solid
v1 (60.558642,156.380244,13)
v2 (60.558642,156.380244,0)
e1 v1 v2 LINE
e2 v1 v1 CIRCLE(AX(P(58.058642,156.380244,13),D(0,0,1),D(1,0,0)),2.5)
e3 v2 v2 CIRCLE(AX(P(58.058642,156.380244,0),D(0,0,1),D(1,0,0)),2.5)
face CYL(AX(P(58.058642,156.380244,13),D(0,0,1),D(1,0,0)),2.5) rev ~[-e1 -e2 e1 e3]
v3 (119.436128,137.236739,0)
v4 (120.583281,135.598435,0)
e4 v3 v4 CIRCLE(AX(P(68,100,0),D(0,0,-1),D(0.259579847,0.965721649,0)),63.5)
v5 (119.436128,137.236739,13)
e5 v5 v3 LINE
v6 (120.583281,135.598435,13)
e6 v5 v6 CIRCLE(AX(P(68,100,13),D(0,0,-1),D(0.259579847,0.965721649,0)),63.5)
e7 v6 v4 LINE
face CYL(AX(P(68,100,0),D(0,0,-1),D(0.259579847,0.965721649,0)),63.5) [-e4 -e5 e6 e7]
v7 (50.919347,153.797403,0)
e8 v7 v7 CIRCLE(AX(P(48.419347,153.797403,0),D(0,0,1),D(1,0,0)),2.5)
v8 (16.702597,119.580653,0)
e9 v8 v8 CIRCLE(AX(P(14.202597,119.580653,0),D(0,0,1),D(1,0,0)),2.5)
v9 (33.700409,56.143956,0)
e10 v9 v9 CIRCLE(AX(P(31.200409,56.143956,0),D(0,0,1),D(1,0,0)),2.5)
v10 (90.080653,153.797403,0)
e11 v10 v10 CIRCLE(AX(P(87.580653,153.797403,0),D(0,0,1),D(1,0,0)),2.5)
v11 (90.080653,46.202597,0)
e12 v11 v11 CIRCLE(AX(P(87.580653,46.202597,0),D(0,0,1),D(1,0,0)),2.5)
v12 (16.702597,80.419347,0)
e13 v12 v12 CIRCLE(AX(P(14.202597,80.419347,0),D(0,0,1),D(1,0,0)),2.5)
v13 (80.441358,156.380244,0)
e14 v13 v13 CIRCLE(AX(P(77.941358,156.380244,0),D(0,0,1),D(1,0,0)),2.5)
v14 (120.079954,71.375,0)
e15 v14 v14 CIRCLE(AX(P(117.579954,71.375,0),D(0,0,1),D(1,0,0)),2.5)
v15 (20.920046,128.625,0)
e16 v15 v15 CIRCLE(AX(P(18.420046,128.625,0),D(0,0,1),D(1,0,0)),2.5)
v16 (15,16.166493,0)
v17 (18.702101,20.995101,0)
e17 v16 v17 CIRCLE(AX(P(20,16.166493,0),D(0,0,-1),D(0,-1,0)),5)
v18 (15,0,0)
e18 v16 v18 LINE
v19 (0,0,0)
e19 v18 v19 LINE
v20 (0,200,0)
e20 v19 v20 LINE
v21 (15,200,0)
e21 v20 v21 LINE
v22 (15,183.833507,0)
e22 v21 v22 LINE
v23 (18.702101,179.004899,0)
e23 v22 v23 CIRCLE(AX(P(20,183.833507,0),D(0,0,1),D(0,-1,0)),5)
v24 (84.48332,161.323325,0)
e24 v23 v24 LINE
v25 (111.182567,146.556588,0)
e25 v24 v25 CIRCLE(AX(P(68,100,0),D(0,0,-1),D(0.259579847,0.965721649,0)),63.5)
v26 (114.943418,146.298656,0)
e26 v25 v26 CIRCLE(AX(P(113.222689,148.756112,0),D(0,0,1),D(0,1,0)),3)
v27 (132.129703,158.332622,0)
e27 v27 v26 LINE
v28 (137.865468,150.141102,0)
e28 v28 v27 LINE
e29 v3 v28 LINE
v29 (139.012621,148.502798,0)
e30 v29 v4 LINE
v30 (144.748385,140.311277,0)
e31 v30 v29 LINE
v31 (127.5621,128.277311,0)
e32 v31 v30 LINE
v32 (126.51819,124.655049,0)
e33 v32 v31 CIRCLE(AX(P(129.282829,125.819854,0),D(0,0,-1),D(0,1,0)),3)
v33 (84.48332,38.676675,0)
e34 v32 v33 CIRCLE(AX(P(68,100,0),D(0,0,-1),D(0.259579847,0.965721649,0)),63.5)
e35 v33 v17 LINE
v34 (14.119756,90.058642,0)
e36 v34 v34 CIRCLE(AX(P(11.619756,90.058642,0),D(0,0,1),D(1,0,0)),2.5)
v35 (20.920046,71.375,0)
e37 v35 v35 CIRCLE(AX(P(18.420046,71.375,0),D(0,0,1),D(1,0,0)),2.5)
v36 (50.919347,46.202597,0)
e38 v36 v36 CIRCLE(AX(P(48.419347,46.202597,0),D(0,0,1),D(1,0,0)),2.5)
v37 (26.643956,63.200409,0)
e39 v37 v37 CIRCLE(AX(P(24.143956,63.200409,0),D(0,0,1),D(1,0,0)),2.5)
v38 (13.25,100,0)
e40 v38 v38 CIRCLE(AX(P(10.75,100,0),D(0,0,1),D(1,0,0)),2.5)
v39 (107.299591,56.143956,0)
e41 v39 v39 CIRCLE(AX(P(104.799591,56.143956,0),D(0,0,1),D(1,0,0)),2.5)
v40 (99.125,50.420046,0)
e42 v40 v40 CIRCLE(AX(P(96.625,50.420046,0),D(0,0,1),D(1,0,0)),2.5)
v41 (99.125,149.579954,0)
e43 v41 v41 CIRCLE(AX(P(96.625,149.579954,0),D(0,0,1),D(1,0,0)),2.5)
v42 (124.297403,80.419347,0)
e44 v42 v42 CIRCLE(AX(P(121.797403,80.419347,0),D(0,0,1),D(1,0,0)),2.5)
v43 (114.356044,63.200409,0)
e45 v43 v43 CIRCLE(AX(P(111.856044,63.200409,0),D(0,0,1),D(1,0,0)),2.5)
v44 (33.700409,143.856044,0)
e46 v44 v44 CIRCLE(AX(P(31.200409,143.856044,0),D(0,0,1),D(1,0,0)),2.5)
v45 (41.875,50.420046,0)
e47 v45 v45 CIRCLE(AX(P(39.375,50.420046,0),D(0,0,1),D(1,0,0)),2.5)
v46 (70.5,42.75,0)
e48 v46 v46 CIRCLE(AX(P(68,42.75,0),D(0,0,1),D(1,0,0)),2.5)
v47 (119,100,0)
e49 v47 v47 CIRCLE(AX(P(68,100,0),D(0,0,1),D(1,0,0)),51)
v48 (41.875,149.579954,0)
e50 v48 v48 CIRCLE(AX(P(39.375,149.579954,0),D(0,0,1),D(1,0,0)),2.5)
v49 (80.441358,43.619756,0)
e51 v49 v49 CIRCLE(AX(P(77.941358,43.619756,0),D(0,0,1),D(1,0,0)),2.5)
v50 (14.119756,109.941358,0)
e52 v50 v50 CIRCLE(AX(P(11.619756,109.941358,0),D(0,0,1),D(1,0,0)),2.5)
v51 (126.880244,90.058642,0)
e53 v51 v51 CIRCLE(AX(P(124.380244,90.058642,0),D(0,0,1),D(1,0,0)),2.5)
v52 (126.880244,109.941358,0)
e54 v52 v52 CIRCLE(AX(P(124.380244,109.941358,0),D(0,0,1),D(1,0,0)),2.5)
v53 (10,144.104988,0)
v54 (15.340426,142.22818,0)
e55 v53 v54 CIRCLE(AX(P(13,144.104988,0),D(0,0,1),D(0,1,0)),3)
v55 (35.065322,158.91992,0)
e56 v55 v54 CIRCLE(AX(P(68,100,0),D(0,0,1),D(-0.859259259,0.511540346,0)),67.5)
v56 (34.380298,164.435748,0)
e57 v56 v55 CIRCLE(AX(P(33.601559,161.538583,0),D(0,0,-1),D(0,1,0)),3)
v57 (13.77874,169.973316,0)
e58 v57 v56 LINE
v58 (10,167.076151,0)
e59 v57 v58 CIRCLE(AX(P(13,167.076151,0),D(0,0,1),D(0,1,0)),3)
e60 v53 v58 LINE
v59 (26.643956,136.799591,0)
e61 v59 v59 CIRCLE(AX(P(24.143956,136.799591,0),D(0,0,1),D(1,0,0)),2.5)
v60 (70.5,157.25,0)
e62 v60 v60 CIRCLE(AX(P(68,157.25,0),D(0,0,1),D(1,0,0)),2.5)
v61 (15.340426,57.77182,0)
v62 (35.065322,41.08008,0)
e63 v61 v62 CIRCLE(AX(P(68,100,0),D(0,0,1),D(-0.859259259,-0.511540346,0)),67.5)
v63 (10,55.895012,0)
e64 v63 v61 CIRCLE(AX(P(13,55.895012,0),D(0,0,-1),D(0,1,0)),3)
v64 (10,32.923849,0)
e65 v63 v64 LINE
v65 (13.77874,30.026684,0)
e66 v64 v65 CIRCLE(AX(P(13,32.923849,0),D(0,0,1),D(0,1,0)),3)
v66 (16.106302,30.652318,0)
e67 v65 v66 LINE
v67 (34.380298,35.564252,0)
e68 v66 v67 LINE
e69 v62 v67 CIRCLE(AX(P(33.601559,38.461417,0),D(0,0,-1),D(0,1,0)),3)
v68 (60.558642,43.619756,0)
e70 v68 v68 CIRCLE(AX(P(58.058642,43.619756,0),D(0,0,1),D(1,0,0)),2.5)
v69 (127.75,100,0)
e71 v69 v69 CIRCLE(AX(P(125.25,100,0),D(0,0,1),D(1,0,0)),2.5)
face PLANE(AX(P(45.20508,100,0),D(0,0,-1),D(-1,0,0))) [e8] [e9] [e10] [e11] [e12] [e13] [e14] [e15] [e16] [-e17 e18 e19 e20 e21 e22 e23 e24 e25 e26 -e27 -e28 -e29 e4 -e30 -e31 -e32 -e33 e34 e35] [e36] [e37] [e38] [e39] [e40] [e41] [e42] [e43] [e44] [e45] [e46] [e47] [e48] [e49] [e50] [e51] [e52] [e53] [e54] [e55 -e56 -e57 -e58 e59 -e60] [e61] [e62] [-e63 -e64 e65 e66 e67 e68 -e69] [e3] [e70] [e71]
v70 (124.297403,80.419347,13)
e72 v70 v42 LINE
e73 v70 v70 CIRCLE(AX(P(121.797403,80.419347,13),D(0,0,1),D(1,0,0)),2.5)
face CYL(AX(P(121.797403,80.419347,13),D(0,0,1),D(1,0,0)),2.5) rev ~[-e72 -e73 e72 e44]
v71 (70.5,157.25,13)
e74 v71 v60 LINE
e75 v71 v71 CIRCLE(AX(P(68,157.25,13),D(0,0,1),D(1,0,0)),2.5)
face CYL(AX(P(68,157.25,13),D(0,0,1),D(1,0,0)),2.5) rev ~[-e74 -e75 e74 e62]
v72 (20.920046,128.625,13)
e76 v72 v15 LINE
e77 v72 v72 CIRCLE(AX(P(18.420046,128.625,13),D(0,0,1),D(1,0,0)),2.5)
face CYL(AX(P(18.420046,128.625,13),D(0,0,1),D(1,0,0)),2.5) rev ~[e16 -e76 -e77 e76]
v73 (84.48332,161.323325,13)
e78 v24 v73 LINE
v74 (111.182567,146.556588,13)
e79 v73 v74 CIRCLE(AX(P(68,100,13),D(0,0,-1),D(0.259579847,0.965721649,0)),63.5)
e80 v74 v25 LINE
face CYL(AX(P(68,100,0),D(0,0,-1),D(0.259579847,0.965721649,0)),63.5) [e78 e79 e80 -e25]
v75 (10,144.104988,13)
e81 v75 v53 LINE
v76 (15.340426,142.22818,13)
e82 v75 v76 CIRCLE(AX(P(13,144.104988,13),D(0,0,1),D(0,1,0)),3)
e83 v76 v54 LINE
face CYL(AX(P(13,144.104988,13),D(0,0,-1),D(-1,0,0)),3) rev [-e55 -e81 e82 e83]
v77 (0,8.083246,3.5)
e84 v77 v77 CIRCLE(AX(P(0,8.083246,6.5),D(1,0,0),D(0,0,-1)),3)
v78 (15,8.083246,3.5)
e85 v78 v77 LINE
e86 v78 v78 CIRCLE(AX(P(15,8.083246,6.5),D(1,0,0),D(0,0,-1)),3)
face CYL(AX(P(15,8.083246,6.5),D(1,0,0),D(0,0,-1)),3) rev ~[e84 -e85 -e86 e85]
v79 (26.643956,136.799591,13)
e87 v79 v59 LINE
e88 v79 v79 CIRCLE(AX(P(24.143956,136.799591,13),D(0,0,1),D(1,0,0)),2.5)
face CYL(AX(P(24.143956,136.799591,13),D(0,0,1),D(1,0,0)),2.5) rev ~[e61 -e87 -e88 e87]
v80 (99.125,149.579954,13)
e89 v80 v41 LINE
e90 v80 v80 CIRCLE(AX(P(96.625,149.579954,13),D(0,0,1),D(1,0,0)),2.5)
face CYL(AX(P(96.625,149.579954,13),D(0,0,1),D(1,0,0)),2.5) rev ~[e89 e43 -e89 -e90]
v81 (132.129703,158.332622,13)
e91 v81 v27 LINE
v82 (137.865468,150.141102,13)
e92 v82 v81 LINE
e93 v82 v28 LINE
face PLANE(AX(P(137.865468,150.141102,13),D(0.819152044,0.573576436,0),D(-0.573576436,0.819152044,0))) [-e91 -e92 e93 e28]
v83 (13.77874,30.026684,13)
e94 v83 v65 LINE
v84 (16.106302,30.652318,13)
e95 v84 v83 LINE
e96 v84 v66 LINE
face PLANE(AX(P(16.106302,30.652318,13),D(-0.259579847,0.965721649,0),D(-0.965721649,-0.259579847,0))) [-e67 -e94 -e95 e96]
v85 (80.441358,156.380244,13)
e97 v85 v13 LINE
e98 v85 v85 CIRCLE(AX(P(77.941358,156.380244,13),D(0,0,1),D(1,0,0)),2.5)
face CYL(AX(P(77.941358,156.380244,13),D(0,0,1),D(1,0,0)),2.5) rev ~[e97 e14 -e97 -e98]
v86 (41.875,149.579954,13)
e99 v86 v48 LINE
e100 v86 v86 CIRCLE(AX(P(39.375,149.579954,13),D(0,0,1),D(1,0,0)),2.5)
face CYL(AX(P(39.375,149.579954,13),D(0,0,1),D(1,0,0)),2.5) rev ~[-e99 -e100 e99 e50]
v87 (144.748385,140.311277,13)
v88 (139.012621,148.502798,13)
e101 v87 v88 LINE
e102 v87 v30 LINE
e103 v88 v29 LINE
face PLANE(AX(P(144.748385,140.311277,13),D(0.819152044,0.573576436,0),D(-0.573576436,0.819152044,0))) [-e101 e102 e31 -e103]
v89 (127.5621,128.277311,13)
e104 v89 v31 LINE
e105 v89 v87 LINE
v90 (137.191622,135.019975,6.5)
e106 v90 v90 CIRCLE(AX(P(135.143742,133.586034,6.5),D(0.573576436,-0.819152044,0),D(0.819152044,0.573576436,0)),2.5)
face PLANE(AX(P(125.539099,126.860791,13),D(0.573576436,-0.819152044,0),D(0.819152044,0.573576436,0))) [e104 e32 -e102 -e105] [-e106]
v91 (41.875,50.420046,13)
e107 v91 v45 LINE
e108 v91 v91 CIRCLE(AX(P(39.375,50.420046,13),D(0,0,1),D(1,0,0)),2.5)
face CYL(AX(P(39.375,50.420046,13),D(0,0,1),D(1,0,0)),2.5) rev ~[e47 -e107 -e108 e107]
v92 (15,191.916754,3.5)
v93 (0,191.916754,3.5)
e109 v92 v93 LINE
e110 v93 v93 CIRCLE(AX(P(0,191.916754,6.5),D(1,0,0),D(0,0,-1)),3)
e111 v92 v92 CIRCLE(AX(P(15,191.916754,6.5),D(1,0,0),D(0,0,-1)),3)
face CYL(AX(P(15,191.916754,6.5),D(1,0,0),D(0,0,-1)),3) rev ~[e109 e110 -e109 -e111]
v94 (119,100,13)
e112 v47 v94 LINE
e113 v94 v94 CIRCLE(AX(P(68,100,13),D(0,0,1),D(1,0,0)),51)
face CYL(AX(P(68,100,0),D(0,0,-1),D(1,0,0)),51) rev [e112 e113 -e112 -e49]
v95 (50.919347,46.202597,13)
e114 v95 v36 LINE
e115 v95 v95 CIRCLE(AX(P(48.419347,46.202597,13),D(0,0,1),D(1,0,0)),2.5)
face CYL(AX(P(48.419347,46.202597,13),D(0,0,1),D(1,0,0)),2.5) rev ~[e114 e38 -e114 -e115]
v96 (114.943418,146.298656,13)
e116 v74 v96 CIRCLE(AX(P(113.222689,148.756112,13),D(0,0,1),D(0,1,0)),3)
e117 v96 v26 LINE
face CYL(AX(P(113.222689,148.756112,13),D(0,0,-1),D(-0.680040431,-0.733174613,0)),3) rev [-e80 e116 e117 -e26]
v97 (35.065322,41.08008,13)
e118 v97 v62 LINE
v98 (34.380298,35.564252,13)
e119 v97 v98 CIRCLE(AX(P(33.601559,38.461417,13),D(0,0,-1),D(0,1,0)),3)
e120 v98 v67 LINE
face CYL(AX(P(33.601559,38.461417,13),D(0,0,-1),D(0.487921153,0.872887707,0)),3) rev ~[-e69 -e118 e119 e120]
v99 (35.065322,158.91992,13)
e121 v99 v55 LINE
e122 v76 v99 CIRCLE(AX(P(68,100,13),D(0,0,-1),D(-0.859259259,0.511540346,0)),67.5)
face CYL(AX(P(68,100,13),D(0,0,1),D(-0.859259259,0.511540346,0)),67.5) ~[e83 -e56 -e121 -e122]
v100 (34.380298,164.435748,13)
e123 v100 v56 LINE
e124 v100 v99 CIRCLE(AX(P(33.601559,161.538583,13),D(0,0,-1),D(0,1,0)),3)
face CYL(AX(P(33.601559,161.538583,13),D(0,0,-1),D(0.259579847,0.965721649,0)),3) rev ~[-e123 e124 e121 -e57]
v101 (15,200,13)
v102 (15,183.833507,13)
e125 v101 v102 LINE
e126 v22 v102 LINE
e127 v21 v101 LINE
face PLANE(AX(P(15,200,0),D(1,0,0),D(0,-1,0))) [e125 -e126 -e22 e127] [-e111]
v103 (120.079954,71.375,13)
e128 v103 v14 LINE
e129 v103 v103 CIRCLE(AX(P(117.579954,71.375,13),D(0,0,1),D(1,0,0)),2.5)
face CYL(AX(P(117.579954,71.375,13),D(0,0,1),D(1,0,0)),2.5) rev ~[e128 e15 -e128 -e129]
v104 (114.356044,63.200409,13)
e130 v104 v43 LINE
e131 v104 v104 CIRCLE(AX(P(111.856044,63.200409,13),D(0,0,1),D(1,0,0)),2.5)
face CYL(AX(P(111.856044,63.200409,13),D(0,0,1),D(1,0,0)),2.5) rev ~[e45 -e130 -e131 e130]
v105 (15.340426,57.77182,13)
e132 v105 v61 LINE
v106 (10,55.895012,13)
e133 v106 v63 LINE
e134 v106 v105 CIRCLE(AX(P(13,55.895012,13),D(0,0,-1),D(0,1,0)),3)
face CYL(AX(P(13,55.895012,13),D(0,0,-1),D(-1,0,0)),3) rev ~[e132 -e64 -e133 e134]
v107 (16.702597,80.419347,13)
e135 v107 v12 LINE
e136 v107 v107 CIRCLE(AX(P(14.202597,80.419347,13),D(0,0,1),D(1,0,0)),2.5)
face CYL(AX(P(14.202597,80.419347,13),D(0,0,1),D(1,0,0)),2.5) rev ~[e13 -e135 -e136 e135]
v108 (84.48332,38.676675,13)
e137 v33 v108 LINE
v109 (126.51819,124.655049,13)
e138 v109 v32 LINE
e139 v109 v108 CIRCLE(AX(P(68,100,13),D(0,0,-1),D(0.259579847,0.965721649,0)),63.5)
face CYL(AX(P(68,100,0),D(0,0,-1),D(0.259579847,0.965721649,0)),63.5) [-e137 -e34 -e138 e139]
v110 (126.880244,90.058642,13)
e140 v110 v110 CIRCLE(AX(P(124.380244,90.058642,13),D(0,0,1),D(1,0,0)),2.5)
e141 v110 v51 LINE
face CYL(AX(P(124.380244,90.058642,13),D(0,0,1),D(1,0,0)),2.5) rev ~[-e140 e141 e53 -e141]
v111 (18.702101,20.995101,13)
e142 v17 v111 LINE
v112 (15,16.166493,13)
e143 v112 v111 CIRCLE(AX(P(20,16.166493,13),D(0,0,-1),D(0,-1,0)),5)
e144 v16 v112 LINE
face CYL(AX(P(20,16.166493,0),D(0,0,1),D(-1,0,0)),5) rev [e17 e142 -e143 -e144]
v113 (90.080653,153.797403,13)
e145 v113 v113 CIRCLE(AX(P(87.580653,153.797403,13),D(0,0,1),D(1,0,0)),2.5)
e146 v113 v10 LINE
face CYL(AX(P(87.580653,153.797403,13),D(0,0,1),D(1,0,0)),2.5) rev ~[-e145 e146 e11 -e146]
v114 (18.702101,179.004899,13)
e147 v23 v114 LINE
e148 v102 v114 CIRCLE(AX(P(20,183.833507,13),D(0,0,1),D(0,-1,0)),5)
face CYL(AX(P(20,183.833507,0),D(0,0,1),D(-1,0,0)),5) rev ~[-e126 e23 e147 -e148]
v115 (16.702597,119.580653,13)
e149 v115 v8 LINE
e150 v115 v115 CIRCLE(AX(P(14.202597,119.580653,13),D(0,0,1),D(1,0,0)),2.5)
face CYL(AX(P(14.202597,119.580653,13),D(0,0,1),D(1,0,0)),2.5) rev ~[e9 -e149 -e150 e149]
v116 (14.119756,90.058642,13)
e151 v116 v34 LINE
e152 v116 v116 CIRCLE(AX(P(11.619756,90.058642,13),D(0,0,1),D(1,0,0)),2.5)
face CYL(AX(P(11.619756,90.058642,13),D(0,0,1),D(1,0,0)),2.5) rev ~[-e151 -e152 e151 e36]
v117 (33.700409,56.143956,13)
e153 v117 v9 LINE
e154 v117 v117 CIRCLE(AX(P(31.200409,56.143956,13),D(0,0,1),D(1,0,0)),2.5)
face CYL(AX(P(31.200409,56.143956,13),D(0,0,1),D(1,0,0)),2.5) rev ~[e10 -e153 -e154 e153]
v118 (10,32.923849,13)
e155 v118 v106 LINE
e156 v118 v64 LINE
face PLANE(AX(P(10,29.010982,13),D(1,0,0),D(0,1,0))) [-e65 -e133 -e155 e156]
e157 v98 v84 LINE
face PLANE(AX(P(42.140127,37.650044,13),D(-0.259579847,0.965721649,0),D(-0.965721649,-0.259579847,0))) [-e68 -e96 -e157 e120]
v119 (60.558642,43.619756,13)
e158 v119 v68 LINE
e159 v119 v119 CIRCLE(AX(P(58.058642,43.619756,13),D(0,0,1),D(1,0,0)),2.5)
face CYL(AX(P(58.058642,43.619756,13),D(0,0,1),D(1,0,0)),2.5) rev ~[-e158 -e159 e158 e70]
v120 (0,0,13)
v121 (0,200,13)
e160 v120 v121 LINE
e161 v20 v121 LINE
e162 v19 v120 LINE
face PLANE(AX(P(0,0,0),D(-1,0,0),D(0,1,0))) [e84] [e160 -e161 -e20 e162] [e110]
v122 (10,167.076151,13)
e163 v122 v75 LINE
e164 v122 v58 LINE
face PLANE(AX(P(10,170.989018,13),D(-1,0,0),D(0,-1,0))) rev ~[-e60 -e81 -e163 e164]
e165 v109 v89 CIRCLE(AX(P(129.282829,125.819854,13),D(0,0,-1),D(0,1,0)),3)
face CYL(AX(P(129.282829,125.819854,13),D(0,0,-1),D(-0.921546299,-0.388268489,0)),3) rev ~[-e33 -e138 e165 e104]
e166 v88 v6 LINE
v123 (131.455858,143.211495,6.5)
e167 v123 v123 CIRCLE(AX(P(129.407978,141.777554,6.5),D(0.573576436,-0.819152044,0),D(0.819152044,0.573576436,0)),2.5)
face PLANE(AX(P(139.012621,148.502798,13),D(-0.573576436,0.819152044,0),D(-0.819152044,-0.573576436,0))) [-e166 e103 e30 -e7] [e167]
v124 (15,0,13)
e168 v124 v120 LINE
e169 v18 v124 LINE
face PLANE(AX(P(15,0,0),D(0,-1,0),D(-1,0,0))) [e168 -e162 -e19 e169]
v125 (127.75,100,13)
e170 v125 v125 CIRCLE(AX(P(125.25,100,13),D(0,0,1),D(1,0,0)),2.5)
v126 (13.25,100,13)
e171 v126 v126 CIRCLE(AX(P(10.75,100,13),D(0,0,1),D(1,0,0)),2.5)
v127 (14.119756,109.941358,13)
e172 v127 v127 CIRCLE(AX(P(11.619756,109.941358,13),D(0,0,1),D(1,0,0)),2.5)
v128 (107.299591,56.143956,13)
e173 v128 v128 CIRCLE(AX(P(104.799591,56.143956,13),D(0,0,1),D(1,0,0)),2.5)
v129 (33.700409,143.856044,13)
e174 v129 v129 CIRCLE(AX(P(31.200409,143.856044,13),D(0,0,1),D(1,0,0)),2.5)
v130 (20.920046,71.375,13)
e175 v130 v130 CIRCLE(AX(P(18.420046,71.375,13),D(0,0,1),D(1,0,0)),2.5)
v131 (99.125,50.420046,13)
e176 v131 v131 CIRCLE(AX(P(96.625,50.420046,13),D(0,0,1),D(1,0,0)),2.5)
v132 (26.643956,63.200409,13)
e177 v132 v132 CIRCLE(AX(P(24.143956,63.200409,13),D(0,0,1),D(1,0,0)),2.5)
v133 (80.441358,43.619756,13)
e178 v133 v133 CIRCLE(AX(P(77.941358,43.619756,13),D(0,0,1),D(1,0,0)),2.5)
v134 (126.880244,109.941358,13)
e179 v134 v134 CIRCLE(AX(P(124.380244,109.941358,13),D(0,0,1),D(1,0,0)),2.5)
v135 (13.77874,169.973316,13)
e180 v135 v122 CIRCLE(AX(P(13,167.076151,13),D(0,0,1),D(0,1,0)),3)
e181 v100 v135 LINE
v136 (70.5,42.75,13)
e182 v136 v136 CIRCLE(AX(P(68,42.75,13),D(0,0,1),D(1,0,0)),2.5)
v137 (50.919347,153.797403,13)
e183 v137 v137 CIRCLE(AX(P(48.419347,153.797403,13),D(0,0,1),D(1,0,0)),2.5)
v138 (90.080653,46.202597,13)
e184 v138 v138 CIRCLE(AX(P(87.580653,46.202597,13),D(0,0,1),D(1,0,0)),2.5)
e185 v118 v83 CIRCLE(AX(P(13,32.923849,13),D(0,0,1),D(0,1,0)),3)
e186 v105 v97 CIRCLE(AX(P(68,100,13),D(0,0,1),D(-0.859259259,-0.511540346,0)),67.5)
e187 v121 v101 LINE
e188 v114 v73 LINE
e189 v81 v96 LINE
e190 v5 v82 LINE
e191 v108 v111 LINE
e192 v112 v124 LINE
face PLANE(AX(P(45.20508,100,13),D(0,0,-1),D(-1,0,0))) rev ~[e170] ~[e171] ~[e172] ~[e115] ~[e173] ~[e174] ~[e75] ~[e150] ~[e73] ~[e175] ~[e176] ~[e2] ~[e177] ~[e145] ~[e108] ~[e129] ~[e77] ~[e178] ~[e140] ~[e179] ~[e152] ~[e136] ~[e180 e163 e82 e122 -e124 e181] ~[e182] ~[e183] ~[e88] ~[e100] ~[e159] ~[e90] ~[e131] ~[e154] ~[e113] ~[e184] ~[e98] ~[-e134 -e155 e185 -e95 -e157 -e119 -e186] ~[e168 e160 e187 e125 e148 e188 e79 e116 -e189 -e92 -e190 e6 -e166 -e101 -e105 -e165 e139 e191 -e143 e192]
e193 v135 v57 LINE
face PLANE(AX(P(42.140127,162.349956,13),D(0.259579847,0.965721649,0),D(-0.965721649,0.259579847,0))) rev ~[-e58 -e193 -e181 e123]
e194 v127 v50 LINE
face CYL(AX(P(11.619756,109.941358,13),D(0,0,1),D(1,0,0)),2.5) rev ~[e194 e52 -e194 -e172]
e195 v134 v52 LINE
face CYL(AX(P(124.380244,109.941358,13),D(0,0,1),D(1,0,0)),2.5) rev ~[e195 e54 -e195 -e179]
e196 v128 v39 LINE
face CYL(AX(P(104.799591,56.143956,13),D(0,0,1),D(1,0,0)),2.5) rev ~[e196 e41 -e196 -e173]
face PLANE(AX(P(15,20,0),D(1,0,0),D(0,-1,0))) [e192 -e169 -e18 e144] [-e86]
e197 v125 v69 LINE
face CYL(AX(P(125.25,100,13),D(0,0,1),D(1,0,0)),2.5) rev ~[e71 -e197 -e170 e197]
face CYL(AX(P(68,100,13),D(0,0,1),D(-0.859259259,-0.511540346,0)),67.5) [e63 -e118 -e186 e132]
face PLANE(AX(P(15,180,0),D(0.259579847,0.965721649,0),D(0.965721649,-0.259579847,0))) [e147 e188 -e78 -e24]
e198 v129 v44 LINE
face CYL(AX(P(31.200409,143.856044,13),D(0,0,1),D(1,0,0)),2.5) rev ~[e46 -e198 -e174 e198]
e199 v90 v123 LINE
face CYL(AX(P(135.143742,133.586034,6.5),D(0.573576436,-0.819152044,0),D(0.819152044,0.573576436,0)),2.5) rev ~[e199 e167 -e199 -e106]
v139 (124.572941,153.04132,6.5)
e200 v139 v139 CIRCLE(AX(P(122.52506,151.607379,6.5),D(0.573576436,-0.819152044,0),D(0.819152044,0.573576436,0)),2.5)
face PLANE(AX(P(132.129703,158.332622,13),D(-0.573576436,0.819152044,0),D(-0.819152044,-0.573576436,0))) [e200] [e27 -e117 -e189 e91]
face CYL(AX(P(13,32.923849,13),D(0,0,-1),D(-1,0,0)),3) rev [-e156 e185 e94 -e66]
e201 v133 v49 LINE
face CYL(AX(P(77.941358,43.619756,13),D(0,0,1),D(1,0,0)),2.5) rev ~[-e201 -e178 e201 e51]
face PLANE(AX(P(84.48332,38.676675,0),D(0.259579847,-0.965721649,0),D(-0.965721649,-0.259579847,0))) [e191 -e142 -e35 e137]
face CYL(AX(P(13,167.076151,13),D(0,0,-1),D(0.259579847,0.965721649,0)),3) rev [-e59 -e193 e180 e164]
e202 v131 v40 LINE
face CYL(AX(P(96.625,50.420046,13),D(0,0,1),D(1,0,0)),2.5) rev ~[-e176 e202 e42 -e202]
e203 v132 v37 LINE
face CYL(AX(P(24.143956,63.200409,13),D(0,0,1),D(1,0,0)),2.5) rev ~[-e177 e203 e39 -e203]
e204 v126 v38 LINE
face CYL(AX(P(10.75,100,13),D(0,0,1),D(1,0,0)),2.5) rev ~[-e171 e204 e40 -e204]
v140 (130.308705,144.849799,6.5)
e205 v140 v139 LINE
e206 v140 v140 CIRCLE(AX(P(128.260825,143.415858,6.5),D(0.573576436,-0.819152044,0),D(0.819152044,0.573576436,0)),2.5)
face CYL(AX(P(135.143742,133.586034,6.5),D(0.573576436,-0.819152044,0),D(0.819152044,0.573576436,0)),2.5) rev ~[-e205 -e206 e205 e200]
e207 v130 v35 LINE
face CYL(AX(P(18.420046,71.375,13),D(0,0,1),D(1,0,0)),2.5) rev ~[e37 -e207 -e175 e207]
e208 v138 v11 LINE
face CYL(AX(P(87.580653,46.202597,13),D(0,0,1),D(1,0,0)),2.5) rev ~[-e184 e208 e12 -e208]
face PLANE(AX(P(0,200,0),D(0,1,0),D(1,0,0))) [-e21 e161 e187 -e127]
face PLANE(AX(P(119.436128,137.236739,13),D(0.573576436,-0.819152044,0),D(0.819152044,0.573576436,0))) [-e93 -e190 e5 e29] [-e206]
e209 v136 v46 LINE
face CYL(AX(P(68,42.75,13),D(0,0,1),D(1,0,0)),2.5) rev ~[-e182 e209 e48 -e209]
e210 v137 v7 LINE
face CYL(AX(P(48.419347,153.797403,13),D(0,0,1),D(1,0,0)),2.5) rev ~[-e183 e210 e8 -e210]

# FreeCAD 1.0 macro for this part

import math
import FreeCAD as App
import Part
import Sketcher
from FreeCAD import Vector
Q = App.Units.Quantity


def edges_at(feature, points):
    """Names of the edges that pass closest to the given points."""
    edges = feature.Shape.Edges
    near = lambda p: min(range(len(edges)), key=lambda i: edges[i].distToShape(Part.Vertex(*p))[0])
    return sorted({f"Edge{near(p) + 1}" for p in points})

doc = App.newDocument("Part")
body = doc.addObject("PartDesign::Body", "Body")

# Sketch on XY plane
sketch1 = body.newObject("Sketcher::SketchObject", "Sketch")
sketch1.AttachmentSupport = (doc.getObject("XY_Plane"), [""])
sketch1.MapMode = "FlatFace"
sketch1.addGeometry(Part.LineSegment(Vector(0, 200, 0), Vector(0, 0, 0)), False)
sketch1.addGeometry(Part.LineSegment(Vector(0, 0, 0), Vector(15, 0, 0)), False)
sketch1.addGeometry(Part.LineSegment(Vector(15, 0, 0), Vector(15, 20, 0)), False)
sketch1.addGeometry(Part.LineSegment(Vector(15, 20, 0), Vector(84.48332, 38.676675, 0)), False)
sketch1.addGeometry(Part.ArcOfCircle(Part.Circle(Vector(68, 100, 0), Vector(0, 0, 1), 63.5), math.radians(-74.954867), math.radians(74.954867)), False)
sketch1.addGeometry(Part.LineSegment(Vector(84.48332, 161.323325, 0), Vector(15, 180, 0)), False)
sketch1.addGeometry(Part.LineSegment(Vector(15, 180, 0), Vector(15, 200, 0)), False)
sketch1.addGeometry(Part.LineSegment(Vector(15, 200, 0), Vector(0, 200, 0)), False)
sketch1.addGeometry(Part.Circle(Vector(68, 100, 0), Vector(0, 0, 1), 51), False)
sketch1.addConstraint(Sketcher.Constraint("Coincident", 0, 2, 1, 1))
sketch1.addConstraint(Sketcher.Constraint("Coincident", 1, 2, 2, 1))
sketch1.addConstraint(Sketcher.Constraint("Coincident", 2, 2, 3, 1))
sketch1.addConstraint(Sketcher.Constraint("Tangent", 3, 2, 4, 1))
sketch1.addConstraint(Sketcher.Constraint("Tangent", 4, 2, 5, 1))
sketch1.addConstraint(Sketcher.Constraint("Coincident", 5, 2, 6, 1))
sketch1.addConstraint(Sketcher.Constraint("Coincident", 6, 2, 7, 1))
sketch1.addConstraint(Sketcher.Constraint("Coincident", 7, 2, 0, 1))
sketch1.addConstraint(Sketcher.Constraint("Vertical", 0))
sketch1.addConstraint(Sketcher.Constraint("Horizontal", 1))
sketch1.addConstraint(Sketcher.Constraint("Vertical", 2))
sketch1.addConstraint(Sketcher.Constraint("Vertical", 6))
sketch1.addConstraint(Sketcher.Constraint("Horizontal", 7))
sketch1.addConstraint(Sketcher.Constraint("Coincident", 0, 2, -1, 1))
sketch1.addConstraint(Sketcher.Constraint("Coincident", 8, 3, 4, 3))
sketch1.addConstraint(Sketcher.Constraint("Vertical", 3, 2, 4, 2))
sketch1.addConstraint(Sketcher.Constraint("Vertical", 2, 2, 5, 2))
sketch1.addConstraint(Sketcher.Constraint("Equal", 2, 6))
sketch1.addConstraint(Sketcher.Constraint("Diameter", 8, 102.0))
sketch1.addConstraint(Sketcher.Constraint("Radius", 4, 63.5))
sketch1.addConstraint(Sketcher.Constraint("DistanceX", 1, 1, 1, 2, 15.0))
sketch1.addConstraint(Sketcher.Constraint("DistanceY", 0, 2, 0, 1, 200.0))
sketch1.addConstraint(Sketcher.Constraint("DistanceY", 2, 1, 2, 2, 20.0))
sketch1.addConstraint(Sketcher.Constraint("DistanceX", -1, 1, 4, 3, 68.0))
pad1 = body.newObject("PartDesign::Pad", "Pad")
pad1.Profile = sketch1
pad1.Length = 13
doc.recompute()

fillet = body.newObject("PartDesign::Fillet", "Fillet")
fillet.Base = (pad1, edges_at(pad1, [(15, 180, 6.5), (15, 20, 6.5)]))
fillet.Radius = 5

# Sketch on XY plane
sketch2 = body.newObject("Sketcher::SketchObject", "Sketch001")
sketch2.AttachmentSupport = (doc.getObject("XY_Plane"), [""])
sketch2.MapMode = "FlatFace"
sketch2.AttachmentOffset = App.Placement(Vector(0, 0, 13), App.Rotation())
sketch2.addGeometry(Part.ArcOfCircle(Part.Circle(Vector(68, 100, 0), Vector(0, 0, 1), 63.5), math.radians(35.902333), math.radians(44.975575)), False)
sketch2.addGeometry(Part.LineSegment(Vector(119.436128, 137.236739, 0), Vector(137.865468, 150.141102, 0)), False)
sketch2.addGeometry(Part.LineSegment(Vector(137.865468, 150.141102, 0), Vector(132.129703, 158.332622, 0)), False)
sketch2.addGeometry(Part.LineSegment(Vector(132.129703, 158.332622, 0), Vector(112.920418, 144.882135, 0)), False)
sketch2.addGeometry(Part.LineSegment(Vector(139.012621, 148.502798, 0), Vector(120.583281, 135.598435, 0)), False)
sketch2.addGeometry(Part.ArcOfCircle(Part.Circle(Vector(68, 100, 0), Vector(0, 0, 1), 63.5), math.radians(25.024425), math.radians(34.097667)), False)
sketch2.addGeometry(Part.LineSegment(Vector(125.539099, 126.860791, 0), Vector(144.748385, 140.311277, 0)), False)
sketch2.addGeometry(Part.LineSegment(Vector(144.748385, 140.311277, 0), Vector(139.012621, 148.502798, 0)), False)
sketch2.addConstraint(Sketcher.Constraint("Coincident", 0, 1, 1, 1))
sketch2.addConstraint(Sketcher.Constraint("Coincident", 1, 2, 2, 1))
sketch2.addConstraint(Sketcher.Constraint("Coincident", 2, 2, 3, 1))
sketch2.addConstraint(Sketcher.Constraint("Coincident", 3, 2, 0, 2))
sketch2.addConstraint(Sketcher.Constraint("Coincident", 4, 2, 5, 2))
sketch2.addConstraint(Sketcher.Constraint("Coincident", 5, 1, 6, 1))
sketch2.addConstraint(Sketcher.Constraint("Coincident", 6, 2, 7, 1))
sketch2.addConstraint(Sketcher.Constraint("Coincident", 7, 2, 4, 1))
sketch2.addConstraint(Sketcher.Constraint("Coincident", 5, 3, 0, 3))
sketch2.addConstraint(Sketcher.Constraint("Equal", 0, 5))
sketch2.addConstraint(Sketcher.Constraint("Perpendicular", 1, 2))
sketch2.addConstraint(Sketcher.Constraint("Perpendicular", 2, 3))
sketch2.addConstraint(Sketcher.Constraint("Parallel", 3, 4))
sketch2.addConstraint(Sketcher.Constraint("Parallel", 4, 6))
sketch2.addConstraint(Sketcher.Constraint("Perpendicular", 6, 7))
sketch2.addConstraint(Sketcher.Constraint("Equal", 1, 4))
sketch2.addConstraint(Sketcher.Constraint("Equal", 3, 6))
sketch2.addConstraint(Sketcher.Constraint("Equal", 2, 7))
sketch2.addConstraint(Sketcher.Constraint("Radius", 0, 63.5))
sketch2.addConstraint(Sketcher.Constraint("Angle", 1, Q("35 deg")))
sketch2.addConstraint(Sketcher.Constraint("Distance", 2, 10.0))
sketch2.addConstraint(Sketcher.Constraint("DistanceX", -1, 1, 0, 3, 68.0))
sketch2.addConstraint(Sketcher.Constraint("DistanceY", -1, 1, 0, 3, 100.0))
sketch2.addConstraint(Sketcher.Constraint("DistanceY", -1, 1, 1, 2, 150.141102))
sketch2.addConstraint(Sketcher.Constraint("DistanceX", -1, 1, 5, 1, 125.539099))
pad2 = body.newObject("PartDesign::Pad", "Pad001")
pad2.Profile = sketch2
pad2.Length = 13
pad2.Reversed = True

# Sketch on XY plane
sketch3 = body.newObject("Sketcher::SketchObject", "Sketch002")
sketch3.AttachmentSupport = (doc.getObject("XY_Plane"), [""])
sketch3.MapMode = "FlatFace"
sketch3.AttachmentOffset = App.Placement(Vector(0, 0, 13), App.Rotation())
sketch3.addGeometry(Part.Circle(Vector(96.625, 149.579954, 0), Vector(0, 0, 1), 2.5), False)
sketch3.addGeometry(Part.Circle(Vector(124.380244, 109.941358, 0), Vector(0, 0, 1), 2.5), False)
sketch3.addGeometry(Part.Circle(Vector(87.580653, 153.797403, 0), Vector(0, 0, 1), 2.5), False)
sketch3.addGeometry(Part.Circle(Vector(77.941358, 156.380244, 0), Vector(0, 0, 1), 2.5), False)
sketch3.addGeometry(Part.Circle(Vector(68, 157.25, 0), Vector(0, 0, 1), 2.5), False)
sketch3.addGeometry(Part.Circle(Vector(58.058642, 156.380244, 0), Vector(0, 0, 1), 2.5), False)
sketch3.addGeometry(Part.Circle(Vector(48.419347, 153.797403, 0), Vector(0, 0, 1), 2.5), False)
sketch3.addGeometry(Part.Circle(Vector(39.375, 149.579954, 0), Vector(0, 0, 1), 2.5), False)
sketch3.addGeometry(Part.Circle(Vector(31.200409, 143.856044, 0), Vector(0, 0, 1), 2.5), False)
sketch3.addGeometry(Part.Circle(Vector(24.143956, 136.799591, 0), Vector(0, 0, 1), 2.5), False)
sketch3.addGeometry(Part.Circle(Vector(18.420046, 128.625, 0), Vector(0, 0, 1), 2.5), False)
sketch3.addGeometry(Part.Circle(Vector(14.202597, 119.580653, 0), Vector(0, 0, 1), 2.5), False)
sketch3.addGeometry(Part.Circle(Vector(11.619756, 109.941358, 0), Vector(0, 0, 1), 2.5), False)
sketch3.addGeometry(Part.Circle(Vector(10.75, 100, 0), Vector(0, 0, 1), 2.5), False)
sketch3.addGeometry(Part.Circle(Vector(11.619756, 90.058642, 0), Vector(0, 0, 1), 2.5), False)
sketch3.addGeometry(Part.Circle(Vector(14.202597, 80.419347, 0), Vector(0, 0, 1), 2.5), False)
sketch3.addGeometry(Part.Circle(Vector(18.420046, 71.375, 0), Vector(0, 0, 1), 2.5), False)
sketch3.addGeometry(Part.Circle(Vector(24.143956, 63.200409, 0), Vector(0, 0, 1), 2.5), False)
sketch3.addGeometry(Part.Circle(Vector(31.200409, 56.143956, 0), Vector(0, 0, 1), 2.5), False)
sketch3.addGeometry(Part.Circle(Vector(39.375, 50.420046, 0), Vector(0, 0, 1), 2.5), False)
sketch3.addGeometry(Part.Circle(Vector(48.419347, 46.202597, 0), Vector(0, 0, 1), 2.5), False)
sketch3.addGeometry(Part.Circle(Vector(58.058642, 43.619756, 0), Vector(0, 0, 1), 2.5), False)
sketch3.addGeometry(Part.Circle(Vector(68, 42.75, 0), Vector(0, 0, 1), 2.5), False)
sketch3.addGeometry(Part.Circle(Vector(77.941358, 43.619756, 0), Vector(0, 0, 1), 2.5), False)
sketch3.addGeometry(Part.Circle(Vector(87.580653, 46.202597, 0), Vector(0, 0, 1), 2.5), False)
sketch3.addGeometry(Part.Circle(Vector(96.625, 50.420046, 0), Vector(0, 0, 1), 2.5), False)
sketch3.addGeometry(Part.Circle(Vector(104.799591, 56.143956, 0), Vector(0, 0, 1), 2.5), False)
sketch3.addGeometry(Part.Circle(Vector(111.856044, 63.200409, 0), Vector(0, 0, 1), 2.5), False)
sketch3.addGeometry(Part.Circle(Vector(117.579954, 71.375, 0), Vector(0, 0, 1), 2.5), False)
sketch3.addGeometry(Part.Circle(Vector(121.797403, 80.419347, 0), Vector(0, 0, 1), 2.5), False)
sketch3.addGeometry(Part.Circle(Vector(124.380244, 90.058642, 0), Vector(0, 0, 1), 2.5), False)
sketch3.addGeometry(Part.Circle(Vector(125.25, 100, 0), Vector(0, 0, 1), 2.5), False)
sketch3.addConstraint(Sketcher.Constraint("Equal", 0, 1))
sketch3.addConstraint(Sketcher.Constraint("Equal", 1, 2))
sketch3.addConstraint(Sketcher.Constraint("Equal", 2, 3))
sketch3.addConstraint(Sketcher.Constraint("Equal", 3, 4))
sketch3.addConstraint(Sketcher.Constraint("Equal", 4, 5))
sketch3.addConstraint(Sketcher.Constraint("Equal", 5, 6))
sketch3.addConstraint(Sketcher.Constraint("Equal", 6, 7))
sketch3.addConstraint(Sketcher.Constraint("Equal", 7, 8))
sketch3.addConstraint(Sketcher.Constraint("Equal", 8, 9))
sketch3.addConstraint(Sketcher.Constraint("Equal", 9, 10))
sketch3.addConstraint(Sketcher.Constraint("Equal", 10, 11))
sketch3.addConstraint(Sketcher.Constraint("Equal", 11, 12))
sketch3.addConstraint(Sketcher.Constraint("Equal", 12, 13))
sketch3.addConstraint(Sketcher.Constraint("Equal", 13, 14))
sketch3.addConstraint(Sketcher.Constraint("Equal", 14, 15))
sketch3.addConstraint(Sketcher.Constraint("Equal", 15, 16))
sketch3.addConstraint(Sketcher.Constraint("Equal", 16, 17))
sketch3.addConstraint(Sketcher.Constraint("Equal", 17, 18))
sketch3.addConstraint(Sketcher.Constraint("Equal", 18, 19))
sketch3.addConstraint(Sketcher.Constraint("Equal", 19, 20))
sketch3.addConstraint(Sketcher.Constraint("Equal", 20, 21))
sketch3.addConstraint(Sketcher.Constraint("Equal", 21, 22))
sketch3.addConstraint(Sketcher.Constraint("Equal", 22, 23))
sketch3.addConstraint(Sketcher.Constraint("Equal", 23, 24))
sketch3.addConstraint(Sketcher.Constraint("Equal", 24, 25))
sketch3.addConstraint(Sketcher.Constraint("Equal", 25, 26))
sketch3.addConstraint(Sketcher.Constraint("Equal", 26, 27))
sketch3.addConstraint(Sketcher.Constraint("Equal", 27, 28))
sketch3.addConstraint(Sketcher.Constraint("Equal", 28, 29))
sketch3.addConstraint(Sketcher.Constraint("Equal", 29, 30))
sketch3.addConstraint(Sketcher.Constraint("Equal", 30, 31))
sketch3.addConstraint(Sketcher.Constraint("Horizontal", 3, 3, 5, 3))
sketch3.addConstraint(Sketcher.Constraint("Horizontal", 2, 3, 6, 3))
sketch3.addConstraint(Sketcher.Constraint("Horizontal", 0, 3, 7, 3))
sketch3.addConstraint(Sketcher.Constraint("Horizontal", 1, 3, 12, 3))
sketch3.addConstraint(Sketcher.Constraint("Horizontal", 21, 3, 23, 3))
sketch3.addConstraint(Sketcher.Constraint("Horizontal", 20, 3, 24, 3))
sketch3.addConstraint(Sketcher.Constraint("Horizontal", 19, 3, 25, 3))
sketch3.addConstraint(Sketcher.Constraint("Horizontal", 18, 3, 26, 3))
sketch3.addConstraint(Sketcher.Constraint("Horizontal", 17, 3, 27, 3))
sketch3.addConstraint(Sketcher.Constraint("Horizontal", 16, 3, 28, 3))
sketch3.addConstraint(Sketcher.Constraint("Horizontal", 15, 3, 29, 3))
sketch3.addConstraint(Sketcher.Constraint("Horizontal", 14, 3, 30, 3))
sketch3.addConstraint(Sketcher.Constraint("Horizontal", 13, 3, 31, 3))
sketch3.addConstraint(Sketcher.Constraint("Vertical", 12, 3, 14, 3))
sketch3.addConstraint(Sketcher.Constraint("Vertical", 11, 3, 15, 3))
sketch3.addConstraint(Sketcher.Constraint("Vertical", 10, 3, 16, 3))
sketch3.addConstraint(Sketcher.Constraint("Vertical", 9, 3, 17, 3))
sketch3.addConstraint(Sketcher.Constraint("Vertical", 8, 3, 18, 3))
sketch3.addConstraint(Sketcher.Constraint("Vertical", 7, 3, 19, 3))
sketch3.addConstraint(Sketcher.Constraint("Vertical", 6, 3, 20, 3))
sketch3.addConstraint(Sketcher.Constraint("Vertical", 5, 3, 21, 3))
sketch3.addConstraint(Sketcher.Constraint("Vertical", 4, 3, 22, 3))
sketch3.addConstraint(Sketcher.Constraint("Vertical", 3, 3, 23, 3))
sketch3.addConstraint(Sketcher.Constraint("Vertical", 2, 3, 24, 3))
sketch3.addConstraint(Sketcher.Constraint("Vertical", 0, 3, 25, 3))
sketch3.addConstraint(Sketcher.Constraint("Vertical", 1, 3, 30, 3))
sketch3.addConstraint(Sketcher.Constraint("Diameter", 0, 5.0))
sketch3.addConstraint(Sketcher.Constraint("DistanceX", -1, 1, 4, 3, 68.0))
sketch3.addConstraint(Sketcher.Constraint("DistanceY", -1, 1, 13, 3, 100.0))
sketch3.addConstraint(Sketcher.Constraint("DistanceY", -1, 1, 4, 3, 157.25))
sketch3.addConstraint(Sketcher.Constraint("DistanceX", -1, 1, 13, 3, 10.75))
sketch3.addConstraint(Sketcher.Constraint("DistanceY", -1, 1, 22, 3, 42.75))
sketch3.addConstraint(Sketcher.Constraint("DistanceX", -1, 1, 31, 3, 125.25))
sketch3.addConstraint(Sketcher.Constraint("DistanceX", -1, 1, 0, 3, 96.625))
sketch3.addConstraint(Sketcher.Constraint("DistanceX", -1, 1, 7, 3, 39.375))
sketch3.addConstraint(Sketcher.Constraint("DistanceY", -1, 1, 10, 3, 128.625))
sketch3.addConstraint(Sketcher.Constraint("DistanceY", -1, 1, 16, 3, 71.375))
sketch3.addConstraint(Sketcher.Constraint("DistanceY", 8, 3, 5, 3, 12.524199))
sketch3.addConstraint(Sketcher.Constraint("DistanceX", 10, 3, 6, 3, 29.999301))
sketch3.addConstraint(Sketcher.Constraint("DistanceY", 11, 3, 7, 3, 29.999301))
sketch3.addConstraint(Sketcher.Constraint("DistanceX", 12, 3, 9, 3, 12.524199))
sketch3.addConstraint(Sketcher.Constraint("DistanceY", 19, 3, 15, 3, 29.999301))
sketch3.addConstraint(Sketcher.Constraint("DistanceY", 21, 3, 18, 3, 12.524199))
sketch3.addConstraint(Sketcher.Constraint("DistanceX", 27, 3, 1, 3, 12.524199))
sketch3.addConstraint(Sketcher.Constraint("DistanceX", 24, 3, 28, 3, 29.999301))
sketch3.addConstraint(Sketcher.Constraint("DistanceY", -1, 1, 1, 3, 109.941358))
sketch3.addConstraint(Sketcher.Constraint("DistanceX", -1, 1, 3, 3, 77.941358))
sketch3.addConstraint(Sketcher.Constraint("DistanceX", -1, 1, 5, 3, 58.058642))
sketch3.addConstraint(Sketcher.Constraint("DistanceX", -1, 1, 8, 3, 31.200409))
sketch3.addConstraint(Sketcher.Constraint("DistanceY", -1, 1, 9, 3, 136.799591))
sketch3.addConstraint(Sketcher.Constraint("DistanceY", -1, 1, 14, 3, 90.058642))
sketch3.addConstraint(Sketcher.Constraint("DistanceY", -1, 1, 17, 3, 63.200409))
sketch3.addConstraint(Sketcher.Constraint("DistanceX", -1, 1, 26, 3, 104.799591))
sketch3.addConstraint(Sketcher.Constraint("DistanceY", 0, 3, 2, 3, 4.217448))
sketch3.addConstraint(Sketcher.Constraint("DistanceX", 2, 3, 1, 3, 36.799591))
sketch3.addConstraint(Sketcher.Constraint("DistanceY", 2, 3, 3, 3, 2.582841))
sketch3.addConstraint(Sketcher.Constraint("DistanceX", 5, 3, 2, 3, 29.522011))
sketch3.addConstraint(Sketcher.Constraint("DistanceX", 6, 3, 3, 3, 29.522011))
sketch3.addConstraint(Sketcher.Constraint("DistanceX", 9, 3, 6, 3, 24.275391))
sketch3.addConstraint(Sketcher.Constraint("DistanceY", 9, 3, 6, 3, 16.997812))
sketch3.addConstraint(Sketcher.Constraint("DistanceX", 11, 3, 10, 3, 4.217448))
sketch3.addConstraint(Sketcher.Constraint("DistanceY", 15, 3, 12, 3, 29.522011))
sketch3.addConstraint(Sketcher.Constraint("DistanceY", 18, 3, 15, 3, 24.275391))
sketch3.addConstraint(Sketcher.Constraint("DistanceY", 20, 3, 19, 3, 4.217448))
sketch3.addConstraint(Sketcher.Constraint("DistanceX", 28, 3, 29, 3, 4.217448))
pocket1 = body.newObject("PartDesign::Pocket", "Pocket")
pocket1.Profile = sketch3
pocket1.Length = 13

# Sketch on YZ plane
sketch4 = body.newObject("Sketcher::SketchObject", "Sketch003")
sketch4.AttachmentSupport = (doc.getObject("YZ_Plane"), [""])
sketch4.MapMode = "FlatFace"
sketch4.AttachmentOffset = App.Placement(Vector(0, 0, 15), App.Rotation())
sketch4.addGeometry(Part.Circle(Vector(191.916754, 6.5, 0), Vector(0, 0, 1), 3), False)
sketch4.addGeometry(Part.Circle(Vector(8.083246, 6.5, 0), Vector(0, 0, 1), 3), False)
sketch4.addConstraint(Sketcher.Constraint("Equal", 0, 1))
sketch4.addConstraint(Sketcher.Constraint("Horizontal", 0, 3, 1, 3))
sketch4.addConstraint(Sketcher.Constraint("Diameter", 0, 6.0))
sketch4.addConstraint(Sketcher.Constraint("DistanceY", -1, 1, 0, 3, 6.5))
sketch4.addConstraint(Sketcher.Constraint("DistanceX", -1, 1, 0, 3, 191.916754))
sketch4.addConstraint(Sketcher.Constraint("DistanceX", -1, 1, 1, 3, 8.083246))
pocket2 = body.newObject("PartDesign::Pocket", "Pocket001")
pocket2.Profile = sketch4
pocket2.Type = "ThroughAll"

# Sketch on an angled plane
sketch5 = body.newObject("Sketcher::SketchObject", "Sketch004")
sketch5.Placement = App.Placement(Vector(-18.303975, 26.140786, 0), App.Rotation(Vector(0.819152044, 0.573576436, 0), Vector(0, 0, 0.999999999), Vector(0.573576436, -0.819152044, 0), "ZXY"))
sketch5.addGeometry(Part.Circle(Vector(187.325074, 6.5, 0), Vector(0, 0, 1), 2.5), False)
sketch5.addConstraint(Sketcher.Constraint("Diameter", 0, 5.0))
sketch5.addConstraint(Sketcher.Constraint("DistanceY", -1, 1, 0, 3, 6.5))
sketch5.addConstraint(Sketcher.Constraint("DistanceX", -1, 1, 0, 3, 187.325074))
pocket3 = body.newObject("PartDesign::Pocket", "Pocket002")
pocket3.Profile = sketch5
pocket3.Type = "ThroughAll"
doc.recompute()

fillet2 = body.newObject("PartDesign::Fillet", "Fillet001")
fillet2.Base = (pocket3, edges_at(pocket3, [(112.92, 144.882, 6.5), (125.539, 126.861, 6.5)]))
fillet2.Radius = 3

# Sketch on XY plane
sketch6 = body.newObject("Sketcher::SketchObject", "Sketch005")
sketch6.AttachmentSupport = (doc.getObject("XY_Plane"), [""])
sketch6.MapMode = "FlatFace"
sketch6.AttachmentOffset = App.Placement(Vector(0, 0, 13), App.Rotation())
sketch6.addGeometry(Part.LineSegment(Vector(42.140127, 162.349956, 0), Vector(10, 170.989018, 0)), False)
sketch6.addGeometry(Part.LineSegment(Vector(10, 170.989018, 0), Vector(10, 134.528973, 0)), False)
sketch6.addGeometry(Part.ArcOfCircle(Part.Circle(Vector(68, 100, 0), Vector(0, 0, 1), 67.5), math.radians(112.526409), math.radians(149.233514)), False)
sketch6.addConstraint(Sketcher.Constraint("Coincident", 0, 2, 1, 1))
sketch6.addConstraint(Sketcher.Constraint("Coincident", 1, 2, 2, 2))
sketch6.addConstraint(Sketcher.Constraint("Coincident", 2, 1, 0, 1))
sketch6.addConstraint(Sketcher.Constraint("Vertical", 1))
sketch6.addConstraint(Sketcher.Constraint("Radius", 2, 67.5))
sketch6.addConstraint(Sketcher.Constraint("DistanceX", -1, 1, 2, 3, 68.0))
sketch6.addConstraint(Sketcher.Constraint("DistanceY", -1, 1, 2, 3, 100.0))
sketch6.addConstraint(Sketcher.Constraint("DistanceX", -1, 1, 0, 2, 10.0))
sketch6.addConstraint(Sketcher.Constraint("DistanceY", 1, 2, 1, 1, 36.460044))
sketch6.addConstraint(Sketcher.Constraint("Distance", 0, 33.280943))
pocket4 = body.newObject("PartDesign::Pocket", "Pocket003")
pocket4.Profile = sketch6
pocket4.Type = "ThroughAll"

# Sketch on XY plane
sketch7 = body.newObject("Sketcher::SketchObject", "Sketch006")
sketch7.AttachmentSupport = (doc.getObject("XY_Plane"), [""])
sketch7.MapMode = "FlatFace"
sketch7.AttachmentOffset = App.Placement(Vector(0, 0, 13), App.Rotation())
sketch7.addGeometry(Part.LineSegment(Vector(10, 29.010982, 0), Vector(16.106302, 30.652318, 0)), False)
sketch7.addGeometry(Part.LineSegment(Vector(16.106302, 30.652318, 0), Vector(42.140127, 37.650044, 0)), False)
sketch7.addGeometry(Part.ArcOfCircle(Part.Circle(Vector(68, 100, 0), Vector(0, 0, 1), 67.5), math.radians(-149.233514), math.radians(-112.526409)), False)
sketch7.addGeometry(Part.LineSegment(Vector(10, 65.471027, 0), Vector(10, 29.010982, 0)), False)
sketch7.addConstraint(Sketcher.Constraint("Coincident", 0, 2, 1, 1))
sketch7.addConstraint(Sketcher.Constraint("Coincident", 1, 2, 2, 2))
sketch7.addConstraint(Sketcher.Constraint("Coincident", 2, 1, 3, 1))
sketch7.addConstraint(Sketcher.Constraint("Coincident", 3, 2, 0, 1))
sketch7.addConstraint(Sketcher.Constraint("Vertical", 3))
sketch7.addConstraint(Sketcher.Constraint("Parallel", 0, 1))
sketch7.addConstraint(Sketcher.Constraint("Radius", 2, 67.5))
sketch7.addConstraint(Sketcher.Constraint("DistanceX", -1, 1, 2, 3, 68.0))
sketch7.addConstraint(Sketcher.Constraint("DistanceY", -1, 1, 2, 3, 100.0))
sketch7.addConstraint(Sketcher.Constraint("DistanceX", -1, 1, 2, 1, 10.0))
sketch7.addConstraint(Sketcher.Constraint("DistanceY", 3, 2, 3, 1, 36.460044))
sketch7.addConstraint(Sketcher.Constraint("DistanceY", 0, 2, 2, 1, 34.818709))
sketch7.addConstraint(Sketcher.Constraint("Distance", 0, 6.323046))
pocket5 = body.newObject("PartDesign::Pocket", "Pocket004")
pocket5.Profile = sketch7
pocket5.Type = "ThroughAll"
doc.recompute()

fillet3 = body.newObject("PartDesign::Fillet", "Fillet002")
fillet3.Base = (pocket5, edges_at(pocket5, [
    (10, 134.529, 6.5),
    (10, 170.989, 6.5),
    (42.14, 162.35, 6.5),
    (10, 65.471, 6.5),
    (42.14, 37.65, 6.5),
    (10, 29.011, 6.5),
]))
fillet3.Radius = 3

doc.recompute()
